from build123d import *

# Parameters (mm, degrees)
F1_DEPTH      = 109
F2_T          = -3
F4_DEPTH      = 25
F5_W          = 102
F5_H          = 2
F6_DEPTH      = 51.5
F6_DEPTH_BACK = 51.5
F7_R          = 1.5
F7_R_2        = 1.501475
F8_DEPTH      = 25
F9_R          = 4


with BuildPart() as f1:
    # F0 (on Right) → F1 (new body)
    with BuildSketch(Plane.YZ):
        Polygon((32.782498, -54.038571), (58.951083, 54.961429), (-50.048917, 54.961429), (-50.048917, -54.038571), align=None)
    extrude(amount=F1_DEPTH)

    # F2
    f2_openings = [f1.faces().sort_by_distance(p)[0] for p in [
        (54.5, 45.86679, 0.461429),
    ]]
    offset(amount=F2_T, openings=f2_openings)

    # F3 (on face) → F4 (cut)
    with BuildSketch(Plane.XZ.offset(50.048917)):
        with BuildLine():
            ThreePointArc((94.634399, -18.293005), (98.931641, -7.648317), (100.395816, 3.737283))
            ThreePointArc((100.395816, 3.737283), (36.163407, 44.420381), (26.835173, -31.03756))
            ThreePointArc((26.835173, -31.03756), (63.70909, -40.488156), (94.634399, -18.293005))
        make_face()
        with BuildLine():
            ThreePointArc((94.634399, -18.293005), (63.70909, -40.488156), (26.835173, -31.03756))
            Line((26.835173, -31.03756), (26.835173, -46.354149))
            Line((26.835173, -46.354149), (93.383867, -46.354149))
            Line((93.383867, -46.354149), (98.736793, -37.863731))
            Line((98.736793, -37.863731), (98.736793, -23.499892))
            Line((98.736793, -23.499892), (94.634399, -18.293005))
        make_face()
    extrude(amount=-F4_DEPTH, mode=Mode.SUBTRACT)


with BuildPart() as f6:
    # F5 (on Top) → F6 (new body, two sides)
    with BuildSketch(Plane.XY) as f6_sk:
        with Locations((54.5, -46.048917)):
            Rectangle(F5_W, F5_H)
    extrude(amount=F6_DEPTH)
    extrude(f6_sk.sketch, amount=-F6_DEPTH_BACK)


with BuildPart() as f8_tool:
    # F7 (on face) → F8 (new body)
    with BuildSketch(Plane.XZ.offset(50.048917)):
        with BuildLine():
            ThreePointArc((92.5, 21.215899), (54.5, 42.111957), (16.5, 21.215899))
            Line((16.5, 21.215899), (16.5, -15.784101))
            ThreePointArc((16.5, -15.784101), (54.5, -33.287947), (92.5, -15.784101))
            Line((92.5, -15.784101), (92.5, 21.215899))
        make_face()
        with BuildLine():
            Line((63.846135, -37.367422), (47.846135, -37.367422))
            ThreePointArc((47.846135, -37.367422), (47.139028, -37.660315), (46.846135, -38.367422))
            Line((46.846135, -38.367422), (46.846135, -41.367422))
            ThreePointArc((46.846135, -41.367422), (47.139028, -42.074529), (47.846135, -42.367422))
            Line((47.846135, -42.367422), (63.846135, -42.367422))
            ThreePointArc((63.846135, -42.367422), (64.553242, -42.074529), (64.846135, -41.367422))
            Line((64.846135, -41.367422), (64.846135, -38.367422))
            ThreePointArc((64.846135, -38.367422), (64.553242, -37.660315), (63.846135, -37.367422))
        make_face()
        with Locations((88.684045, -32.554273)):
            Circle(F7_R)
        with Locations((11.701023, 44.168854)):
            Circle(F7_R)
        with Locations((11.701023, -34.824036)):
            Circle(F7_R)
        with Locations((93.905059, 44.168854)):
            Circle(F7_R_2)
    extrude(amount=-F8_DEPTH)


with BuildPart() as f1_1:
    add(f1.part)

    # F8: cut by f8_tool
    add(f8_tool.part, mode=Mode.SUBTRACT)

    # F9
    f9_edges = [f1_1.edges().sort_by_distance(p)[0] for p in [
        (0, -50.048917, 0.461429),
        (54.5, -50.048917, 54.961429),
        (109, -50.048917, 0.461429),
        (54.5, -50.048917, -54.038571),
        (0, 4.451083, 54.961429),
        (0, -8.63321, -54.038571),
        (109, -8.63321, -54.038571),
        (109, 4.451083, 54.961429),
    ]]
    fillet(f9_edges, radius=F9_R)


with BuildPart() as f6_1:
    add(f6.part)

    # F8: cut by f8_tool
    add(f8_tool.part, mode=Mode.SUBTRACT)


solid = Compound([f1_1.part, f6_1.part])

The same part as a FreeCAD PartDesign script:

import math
import FreeCAD as App
import Part
import Sketcher
Q = App.Units.Quantity


def edges_at(feature, points):
    """Names of the edges that pass closest to the given points."""
    edges = feature.Shape.Edges
    near = lambda p: min(range(len(edges)), key=lambda i: edges[i].distToShape(Part.Vertex(*p))[0])
    return sorted({f"Edge{near(p) + 1}" for p in points})


def faces_at(feature, points):
    """Names of the faces that lie closest to the given points."""
    faces = feature.Shape.Faces
    near = lambda p: min(range(len(faces)), key=lambda i: faces[i].distToShape(Part.Vertex(*p))[0])
    return sorted({f"Face{near(p) + 1}" for p in points})


def add_polygon(sketch, points):
    """Adds a closed chain of lines whose ends are joined by coincident constraints."""
    first, n = sketch.GeometryCount, len(points)
    for a, b in zip(points, points[1:] + points[:1]):
        sketch.addGeometry(Part.LineSegment(App.Vector(*a, 0), App.Vector(*b, 0)), False)
    for i in range(n):
        sketch.addConstraint(Sketcher.Constraint("Coincident", first + i, 2, first + (i + 1) % n, 1))

doc = App.newDocument("Part")
params = doc.addObject("Spreadsheet::Sheet", "Params")
for row, (alias, value) in enumerate([
    ("sketch1_width", "109 mm"),
    ("pad1_length", "109 mm"),
    ("thickness_wall", "3 mm"),
    ("sketch2_radius", "45 mm"),
    ("pocket1_length", "25 mm"),
    ("sketch3_width", "102 mm"),
    ("sketch3_height", "2 mm"),
    ("pad2_length", "51.5 mm"),
    ("pad2_length2", "51.5 mm"),
    ("sketch4_diameter", "3 mm"),
    ("sketch4_radius", "45 mm"),
    ("sketch4_radius2", "50.000001 mm"),
    ("sketch4_radius3", "0.999999 mm"),
    ("sketch4_width", "16 mm"),
    ("pad3_length", "25 mm"),
    ("fillet_radius", "4 mm"),
], start=1):
    params.set(f"A{row}", alias)
    params.set(f"B{row}", "=" + value)
    params.setAlias(f"B{row}", alias)

body = doc.addObject("PartDesign::Body", "Body")

# Sketch on YZ plane
sketch1 = body.newObject("Sketcher::SketchObject", "Sketch")
sketch1.AttachmentSupport = (doc.getObject("YZ_Plane"), [""])
sketch1.MapMode = "FlatFace"
add_polygon(sketch1, [(32.782498, -54.038571), (58.951083, 54.961429), (-50.048917, 54.961429), (-50.048917, -54.038571)])  # lines 0-3
sketch1.addConstraint([
    Sketcher.Constraint("Horizontal", 1),
    Sketcher.Constraint("Vertical", 2),
    Sketcher.Constraint("Horizontal", 3),
    Sketcher.Constraint("Equal", 1, 2),
    Sketcher.Constraint("DistanceX", 1, 2, 1, 1, Q("109 mm")),
    Sketcher.Constraint("Angle", 0, Q("76.5 deg")),
    Sketcher.Constraint("DistanceY", -1, 1, 0, 2, Q("54.961429 mm")),
    Sketcher.Constraint("DistanceX", -1, 1, 0, 2, Q("58.951083 mm")),
])
sketch1.setExpression("Constraints[8]", "Params.sketch1_width")
pad1 = body.newObject("PartDesign::Pad", "Pad")
pad1.Profile = sketch1
pad1.setExpression("Length", "Params.pad1_length")
doc.recompute()

thickness = body.newObject("PartDesign::Thickness", "Thickness")
thickness.Base = (pad1, faces_at(pad1, [(54.5, 45.867, 0.461)]))
thickness.setExpression("Value", "Params.thickness_wall")
thickness.Reversed = True
thickness.Join = "Arc"

# Sketch on XZ plane
sketch2 = body.newObject("Sketcher::SketchObject", "Sketch001")
sketch2.AttachmentSupport = (doc.getObject("XZ_Plane"), [""])
sketch2.MapMode = "FlatFace"
sketch2.AttachmentOffset = App.Placement(App.Vector(0, 0, 50.048917), App.Rotation())
sketch2.addGeometry([
    Part.ArcOfCircle(Part.Circle(App.Vector(55.395801, 3.737287, 0), App.Vector(0, 0, 1), 45.000015), math.radians(-29.31179), math.radians(-0.000006)),  # 0
    Part.ArcOfCircle(Part.Circle(App.Vector(55.395816, 3.737283, 0), App.Vector(0, 0, 1), 45), math.radians(0), math.radians(230.603675)),  # 1
    Part.LineSegment(App.Vector(26.835173, -31.03756, 0), App.Vector(26.835173, -46.354149, 0)),  # 2
    Part.LineSegment(App.Vector(26.835173, -46.354149, 0), App.Vector(93.383867, -46.354149, 0)),  # 3
    Part.LineSegment(App.Vector(93.383867, -46.354149, 0), App.Vector(98.736793, -37.863731, 0)),  # 4
    Part.LineSegment(App.Vector(98.736793, -37.863731, 0), App.Vector(98.736793, -23.499892, 0)),  # 5
    Part.LineSegment(App.Vector(98.736793, -23.499892, 0), App.Vector(94.634399, -18.293005, 0)),  # 6
], False)
sketch2.addConstraint([
    Sketcher.Constraint("Tangent", 0, 2, 1, 1),
    Sketcher.Constraint("Coincident", 1, 2, 2, 1),
    Sketcher.Constraint("Coincident", 2, 2, 3, 1),
    Sketcher.Constraint("Coincident", 3, 2, 4, 1),
    Sketcher.Constraint("Coincident", 4, 2, 5, 1),
    Sketcher.Constraint("Coincident", 5, 2, 6, 1),
    Sketcher.Constraint("Coincident", 6, 2, 0, 1),
    Sketcher.Constraint("Vertical", 2),
    Sketcher.Constraint("Horizontal", 3),
    Sketcher.Constraint("Vertical", 5),
    Sketcher.Constraint("Horizontal", 1, 3, 0, 2),
    Sketcher.Constraint("Radius", 1, Q("45 mm")),
    Sketcher.Constraint("Radius", 0, Q("45.000015 mm")),
    Sketcher.Constraint("DistanceY", 2, 2, 2, 1, Q("15.316589 mm")),
    Sketcher.Constraint("DistanceY", 5, 1, 5, 2, Q("14.363839 mm")),
    Sketcher.Constraint("DistanceX", -1, 1, 0, 3, Q("55.395801 mm")),
    Sketcher.Constraint("DistanceX", -1, 1, 6, 2, Q("94.634399 mm")),
    Sketcher.Constraint("DistanceX", 3, 1, 3, 2, Q("66.548694 mm")),
    Sketcher.Constraint("DistanceY", 1, 2, -1, 1, Q("31.03756 mm")),
    Sketcher.Constraint("DistanceY", 4, 2, -1, 1, Q("37.863731 mm")),
    Sketcher.Constraint("DistanceY", 2, 2, 1, 3, Q("50.091432 mm")),
    Sketcher.Constraint("DistanceX", 1, 2, 4, 2, Q("71.90162 mm")),
])
sketch2.setExpression("Constraints[11]", "Params.sketch2_radius")
pocket1 = body.newObject("PartDesign::Pocket", "Pocket")
pocket1.Profile = sketch2
pocket1.setExpression("Length", "Params.pocket1_length")
body2 = doc.addObject("PartDesign::Body", "Body001")

# Sketch on XY plane
sketch3 = body2.newObject("Sketcher::SketchObject", "Sketch002")
sketch3.AttachmentSupport = (doc.getObject("XY_Plane001"), [""])
sketch3.MapMode = "FlatFace"
add_polygon(sketch3, [(3.5, -45.048917), (3.5, -47.048917), (105.5, -47.048917), (105.5, -45.048917)])  # lines 0-3
sketch3.addConstraint([
    Sketcher.Constraint("Vertical", 0),
    Sketcher.Constraint("Horizontal", 1),
    Sketcher.Constraint("Vertical", 2),
    Sketcher.Constraint("Horizontal", 3),
    Sketcher.Constraint("DistanceX", 1, 1, 1, 2, Q("102 mm")),
    Sketcher.Constraint("DistanceY", 0, 2, 0, 1, Q("2 mm")),
    Sketcher.Constraint("DistanceX", -1, 1, 0, 2, Q("3.5 mm")),
    Sketcher.Constraint("DistanceY", 0, 2, -1, 1, Q("47.048917 mm")),
])
sketch3.setExpression("Constraints[8]", "Params.sketch3_width")
sketch3.setExpression("Constraints[9]", "Params.sketch3_height")
pad2 = body2.newObject("PartDesign::Pad", "Pad001")
pad2.Profile = sketch3
pad2.Type = "TwoLengths"
pad2.setExpression("Length", "Params.pad2_length")
pad2.setExpression("Length2", "Params.pad2_length2")
body3 = doc.addObject("PartDesign::Body", "Body002")
body3.AllowCompound = True

# Sketch on XZ plane
sketch4 = body3.newObject("Sketcher::SketchObject", "Sketch003")
sketch4.AttachmentSupport = (doc.getObject("XZ_Plane002"), [""])
sketch4.MapMode = "FlatFace"
sketch4.AttachmentOffset = App.Placement(App.Vector(0, 0, 50.048917), App.Rotation())
sketch4.addGeometry([
    Part.ArcOfCircle(Part.Circle(App.Vector(54.5, -2.888043, 0), App.Vector(0, 0, 1), 45), math.radians(32.387539), math.radians(147.612461)),  # 0
    Part.LineSegment(App.Vector(16.5, 21.215899, 0), App.Vector(16.5, -15.784101, 0)),  # 1
    Part.ArcOfCircle(Part.Circle(App.Vector(54.5, 16.712054, 0), App.Vector(0, 0, 1), 50.000001), math.radians(-139.464197), math.radians(-40.535803)),  # 2
    Part.LineSegment(App.Vector(92.5, -15.784101, 0), App.Vector(92.5, 21.215899, 0)),  # 3
    Part.LineSegment(App.Vector(63.846135, -37.367422, 0), App.Vector(47.846135, -37.367422, 0)),  # 4
    Part.ArcOfCircle(Part.Circle(App.Vector(47.846134, -38.367421, 0), App.Vector(0, 0, 1), 0.999999), math.radians(89.999957), math.radians(180.000043)),  # 5
    Part.LineSegment(App.Vector(46.846135, -38.367422, 0), App.Vector(46.846135, -41.367422, 0)),  # 6
    Part.ArcOfCircle(Part.Circle(App.Vector(47.846134, -41.367423, 0), App.Vector(0, 0, 1), 0.999999), math.radians(179.999957), math.radians(270.000043)),  # 7
    Part.LineSegment(App.Vector(47.846135, -42.367422, 0), App.Vector(63.846135, -42.367422, 0)),  # 8
    Part.ArcOfCircle(Part.Circle(App.Vector(63.846136, -41.367423, 0), App.Vector(0, 0, 1), 0.999999), math.radians(-90.000043), math.radians(0.000043)),  # 9
    Part.LineSegment(App.Vector(64.846135, -41.367422, 0), App.Vector(64.846135, -38.367422, 0)),  # 10
    Part.ArcOfCircle(Part.Circle(App.Vector(63.846136, -38.367421, 0), App.Vector(0, 0, 1), 0.999999), math.radians(-0.000043), math.radians(90.000043)),  # 11
    Part.Circle(App.Vector(88.684045, -32.554273, 0), App.Vector(0, 0, 1), 1.5),  # 12
    Part.Circle(App.Vector(11.701023, 44.168854, 0), App.Vector(0, 0, 1), 1.5),  # 13
    Part.Circle(App.Vector(11.701023, -34.824036, 0), App.Vector(0, 0, 1), 1.5),  # 14
    Part.Circle(App.Vector(93.905059, 44.168854, 0), App.Vector(0, 0, 1), 1.501475),  # 15
], False)
sketch4.addConstraint([
    Sketcher.Constraint("Coincident", 0, 2, 1, 1),
    Sketcher.Constraint("Coincident", 1, 2, 2, 1),
    Sketcher.Constraint("Coincident", 2, 2, 3, 1),
    Sketcher.Constraint("Coincident", 3, 2, 0, 1),
    Sketcher.Constraint("Tangent", 4, 2, 5, 1),
    Sketcher.Constraint("Tangent", 5, 2, 6, 1),
    Sketcher.Constraint("Tangent", 6, 2, 7, 1),
    Sketcher.Constraint("Tangent", 7, 2, 8, 1),
    Sketcher.Constraint("Tangent", 8, 2, 9, 1),
    Sketcher.Constraint("Tangent", 9, 2, 10, 1),
    Sketcher.Constraint("Tangent", 10, 2, 11, 1),
    Sketcher.Constraint("Tangent", 11, 2, 4, 1),
    Sketcher.Constraint("Vertical", 1),
    Sketcher.Constraint("Vertical", 3),
    Sketcher.Constraint("Horizontal", 4),
    Sketcher.Constraint("Vertical", 6),
    Sketcher.Constraint("Horizontal", 8),
    Sketcher.Constraint("Vertical", 10),
    Sketcher.Constraint("Equal", 5, 7),
    Sketcher.Constraint("Equal", 7, 9),
    Sketcher.Constraint("Equal", 9, 11),
    Sketcher.Constraint("Equal", 12, 13),
    Sketcher.Constraint("Equal", 13, 14),
    Sketcher.Constraint("Horizontal", 13, 3, 15, 3),
    Sketcher.Constraint("Horizontal", 1, 2, 2, 2),
    Sketcher.Constraint("Horizontal", 0, 2, 3, 2),
    Sketcher.Constraint("Vertical", 13, 3, 14, 3),
    Sketcher.Constraint("Diameter", 12, Q("3 mm")),
    Sketcher.Constraint("Radius", 0, Q("45 mm")),
    Sketcher.Constraint("Radius", 2, Q("50.000001 mm")),
    Sketcher.Constraint("Radius", 5, Q("0.999999 mm")),
    Sketcher.Constraint("DistanceX", 4, 2, 4, 1, Q("16 mm")),
    Sketcher.Constraint("DistanceY", 1, 2, 1, 1, Q("37 mm")),
    Sketcher.Constraint("DistanceY", 6, 2, 6, 1, Q("3 mm")),
    Sketcher.Constraint("DistanceX", 0, 2, 2, 3, Q("38 mm")),
    Sketcher.Constraint("DistanceX", -1, 1, 0, 3, Q("54.5 mm")),
    Sketcher.Constraint("Diameter", 15, Q("3.00295 mm")),
    Sketcher.Constraint("DistanceY", -1, 1, 0, 2, Q("21.215899 mm")),
    Sketcher.Constraint("DistanceY", 2, 3, 13, 3, Q("27.4568 mm")),
    Sketcher.Constraint("DistanceY", 5, 3, -1, 1, Q("38.367421 mm")),
    Sketcher.Constraint("DistanceX", -1, 1, 15, 3, Q("93.905059 mm")),
    Sketcher.Constraint("DistanceX", 11, 3, 12, 3, Q("24.837909 mm")),
    Sketcher.Constraint("DistanceY", 11, 3, 12, 3, Q("5.813148 mm")),
    Sketcher.Constraint("DistanceX", 13, 3, 5, 3, Q("36.145111 mm")),
    Sketcher.Constraint("DistanceX", -1, 1, 5, 3, Q("47.846134 mm")),
    Sketcher.Constraint("DistanceY", 14, 3, -1, 1, Q("34.824036 mm")),
])
sketch4.setExpression("Constraints[27]", "Params.sketch4_diameter")
sketch4.setExpression("Constraints[28]", "Params.sketch4_radius")
sketch4.setExpression("Constraints[29]", "Params.sketch4_radius2")
sketch4.setExpression("Constraints[30]", "Params.sketch4_radius3")
sketch4.setExpression("Constraints[31]", "Params.sketch4_width")
pad3 = body3.newObject("PartDesign::Pad", "Pad002")
pad3.Profile = sketch4
pad3.setExpression("Length", "Params.pad3_length")
pad3.Reversed = True
doc.recompute()

body4 = doc.addObject("PartDesign::Body", "Body003")
body4.BaseFeature = body3
boolean = body.newObject("PartDesign::Boolean", "Boolean")
boolean.Type = "Cut"
boolean.addObjects([body4])
doc.recompute()

fillet = body.newObject("PartDesign::Fillet", "Fillet")
fillet.Base = (boolean, edges_at(boolean, [
    (0, -50.049, 0.461),
    (54.5, -50.049, 54.961),
    (109, -50.049, 0.461),
    (54.5, -50.049, -54.039),
    (0, 4.451, 54.961),
    (0, -8.633, -54.039),
    (109, -8.633, -54.039),
    (109, 4.451, 54.961),
]))
fillet.setExpression("Radius", "Params.fillet_radius")
doc.recompute()

boolean2 = body2.newObject("PartDesign::Boolean", "Boolean001")
boolean2.Type = "Cut"
boolean2.addObjects([body3])

doc.recompute()
